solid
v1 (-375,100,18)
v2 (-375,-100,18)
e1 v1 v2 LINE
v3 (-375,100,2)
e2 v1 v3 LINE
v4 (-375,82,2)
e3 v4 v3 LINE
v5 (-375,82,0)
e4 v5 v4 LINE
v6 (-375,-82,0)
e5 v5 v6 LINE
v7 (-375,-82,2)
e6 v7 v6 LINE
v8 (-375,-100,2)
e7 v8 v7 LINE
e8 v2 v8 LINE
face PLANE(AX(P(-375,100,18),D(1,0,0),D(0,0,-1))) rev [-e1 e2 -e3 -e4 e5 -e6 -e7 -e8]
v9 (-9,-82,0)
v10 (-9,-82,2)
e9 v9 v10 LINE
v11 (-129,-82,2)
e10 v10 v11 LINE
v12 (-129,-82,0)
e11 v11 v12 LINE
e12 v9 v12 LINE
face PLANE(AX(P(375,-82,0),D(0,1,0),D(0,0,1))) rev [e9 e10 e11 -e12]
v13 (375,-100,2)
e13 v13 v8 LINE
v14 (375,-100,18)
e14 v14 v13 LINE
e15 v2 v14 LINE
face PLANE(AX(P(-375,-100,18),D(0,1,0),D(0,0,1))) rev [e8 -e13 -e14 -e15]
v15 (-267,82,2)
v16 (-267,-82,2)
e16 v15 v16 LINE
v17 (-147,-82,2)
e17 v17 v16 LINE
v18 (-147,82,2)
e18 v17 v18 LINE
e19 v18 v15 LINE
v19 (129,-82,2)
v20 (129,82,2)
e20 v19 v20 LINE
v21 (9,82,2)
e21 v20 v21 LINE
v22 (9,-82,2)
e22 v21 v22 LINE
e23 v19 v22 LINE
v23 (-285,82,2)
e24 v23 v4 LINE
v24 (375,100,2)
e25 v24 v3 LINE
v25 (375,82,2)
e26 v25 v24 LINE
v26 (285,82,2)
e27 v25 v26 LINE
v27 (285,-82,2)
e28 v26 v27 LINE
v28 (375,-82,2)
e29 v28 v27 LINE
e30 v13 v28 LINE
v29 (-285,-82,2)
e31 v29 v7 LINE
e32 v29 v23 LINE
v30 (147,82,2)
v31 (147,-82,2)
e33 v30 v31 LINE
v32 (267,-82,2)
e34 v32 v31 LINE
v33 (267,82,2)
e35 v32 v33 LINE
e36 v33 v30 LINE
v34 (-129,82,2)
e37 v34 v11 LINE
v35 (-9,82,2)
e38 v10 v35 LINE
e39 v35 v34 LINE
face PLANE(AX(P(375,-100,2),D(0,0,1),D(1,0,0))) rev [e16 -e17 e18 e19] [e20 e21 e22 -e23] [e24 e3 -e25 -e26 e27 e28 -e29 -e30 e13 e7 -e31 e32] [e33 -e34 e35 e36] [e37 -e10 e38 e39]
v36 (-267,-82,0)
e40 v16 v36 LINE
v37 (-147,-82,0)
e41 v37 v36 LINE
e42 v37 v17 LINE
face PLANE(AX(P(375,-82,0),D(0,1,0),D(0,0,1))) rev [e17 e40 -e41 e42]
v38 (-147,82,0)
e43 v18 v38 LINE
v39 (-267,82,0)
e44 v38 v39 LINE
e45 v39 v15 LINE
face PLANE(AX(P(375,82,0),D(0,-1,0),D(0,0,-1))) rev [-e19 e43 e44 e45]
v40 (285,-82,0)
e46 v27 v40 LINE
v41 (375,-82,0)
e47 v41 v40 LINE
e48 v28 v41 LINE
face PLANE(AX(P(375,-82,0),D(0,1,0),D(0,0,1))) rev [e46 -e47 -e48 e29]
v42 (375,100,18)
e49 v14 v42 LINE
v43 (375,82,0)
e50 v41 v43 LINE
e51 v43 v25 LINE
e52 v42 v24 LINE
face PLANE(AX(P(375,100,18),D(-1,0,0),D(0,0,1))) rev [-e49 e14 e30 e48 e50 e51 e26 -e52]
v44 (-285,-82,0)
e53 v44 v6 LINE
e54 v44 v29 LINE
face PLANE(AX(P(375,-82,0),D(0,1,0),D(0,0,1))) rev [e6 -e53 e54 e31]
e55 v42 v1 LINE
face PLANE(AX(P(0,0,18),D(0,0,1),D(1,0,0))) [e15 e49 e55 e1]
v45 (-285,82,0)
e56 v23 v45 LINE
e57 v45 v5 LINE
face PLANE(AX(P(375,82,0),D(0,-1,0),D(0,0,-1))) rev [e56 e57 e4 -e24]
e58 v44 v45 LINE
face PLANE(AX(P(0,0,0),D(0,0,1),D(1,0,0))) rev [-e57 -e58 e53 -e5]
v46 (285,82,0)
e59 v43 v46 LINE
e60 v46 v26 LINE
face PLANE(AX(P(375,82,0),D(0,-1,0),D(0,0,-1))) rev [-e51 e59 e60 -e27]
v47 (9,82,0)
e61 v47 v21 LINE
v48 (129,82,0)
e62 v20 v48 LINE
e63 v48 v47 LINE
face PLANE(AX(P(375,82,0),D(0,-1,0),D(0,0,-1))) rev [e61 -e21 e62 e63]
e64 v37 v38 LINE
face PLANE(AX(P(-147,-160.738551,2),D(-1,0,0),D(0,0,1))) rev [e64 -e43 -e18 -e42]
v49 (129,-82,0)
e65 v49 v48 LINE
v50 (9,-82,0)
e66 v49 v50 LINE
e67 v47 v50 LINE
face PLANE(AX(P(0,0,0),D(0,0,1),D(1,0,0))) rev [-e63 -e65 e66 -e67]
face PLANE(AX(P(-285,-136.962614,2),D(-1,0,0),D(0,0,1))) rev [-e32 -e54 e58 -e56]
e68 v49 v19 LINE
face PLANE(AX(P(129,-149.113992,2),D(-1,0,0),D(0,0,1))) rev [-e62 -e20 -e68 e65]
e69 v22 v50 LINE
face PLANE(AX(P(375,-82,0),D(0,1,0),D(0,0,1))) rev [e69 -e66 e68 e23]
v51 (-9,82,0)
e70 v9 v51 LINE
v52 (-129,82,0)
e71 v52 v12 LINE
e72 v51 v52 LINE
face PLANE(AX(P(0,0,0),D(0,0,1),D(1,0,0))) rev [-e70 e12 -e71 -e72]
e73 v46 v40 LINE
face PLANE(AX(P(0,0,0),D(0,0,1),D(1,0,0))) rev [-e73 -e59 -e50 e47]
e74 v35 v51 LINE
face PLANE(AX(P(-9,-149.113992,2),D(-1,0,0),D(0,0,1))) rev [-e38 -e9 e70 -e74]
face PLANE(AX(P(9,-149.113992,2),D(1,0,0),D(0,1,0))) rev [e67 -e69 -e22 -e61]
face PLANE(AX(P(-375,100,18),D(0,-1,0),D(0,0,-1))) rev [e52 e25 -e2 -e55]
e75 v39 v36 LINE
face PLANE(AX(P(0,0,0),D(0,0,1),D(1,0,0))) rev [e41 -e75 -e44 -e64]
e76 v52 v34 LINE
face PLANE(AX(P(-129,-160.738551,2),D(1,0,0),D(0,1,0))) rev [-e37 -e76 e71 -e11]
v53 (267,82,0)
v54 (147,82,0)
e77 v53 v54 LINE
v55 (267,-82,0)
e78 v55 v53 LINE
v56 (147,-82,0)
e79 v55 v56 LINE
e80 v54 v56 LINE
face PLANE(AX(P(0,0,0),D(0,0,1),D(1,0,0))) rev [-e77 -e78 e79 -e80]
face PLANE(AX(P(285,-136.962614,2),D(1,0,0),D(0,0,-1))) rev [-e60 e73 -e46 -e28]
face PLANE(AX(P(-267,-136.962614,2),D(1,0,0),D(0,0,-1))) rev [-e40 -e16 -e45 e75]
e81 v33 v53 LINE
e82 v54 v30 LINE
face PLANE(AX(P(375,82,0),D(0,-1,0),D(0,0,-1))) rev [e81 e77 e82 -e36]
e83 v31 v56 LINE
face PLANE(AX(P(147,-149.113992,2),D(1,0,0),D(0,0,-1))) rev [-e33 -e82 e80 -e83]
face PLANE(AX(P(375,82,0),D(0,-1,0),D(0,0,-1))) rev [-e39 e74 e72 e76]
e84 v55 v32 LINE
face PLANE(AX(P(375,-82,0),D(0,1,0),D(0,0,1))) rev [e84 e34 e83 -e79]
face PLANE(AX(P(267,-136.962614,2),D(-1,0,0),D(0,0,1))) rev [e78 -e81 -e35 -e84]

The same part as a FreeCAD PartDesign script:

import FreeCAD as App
import Part
import Sketcher

doc = App.newDocument("Part")
body = doc.addObject("PartDesign::Body", "Body")

# Sketch on XY plane
sketch1 = doc.addObject("Sketcher::SketchObject", "Sketch")
body.addObject(sketch1)
sketch1.AttachmentSupport = (doc.XY_Plane, [""])
sketch1.MapMode = "FlatFace"
sketch1.addGeometry(Part.LineSegment(App.Vector(-375, 100, 0), App.Vector(-375, -100, 0)), False)
sketch1.addGeometry(Part.LineSegment(App.Vector(-375, -100, 0), App.Vector(375, -100, 0)), False)
sketch1.addGeometry(Part.LineSegment(App.Vector(375, -100, 0), App.Vector(375, 100, 0)), False)
sketch1.addGeometry(Part.LineSegment(App.Vector(375, 100, 0), App.Vector(-375, 100, 0)), False)
sketch1.addConstraint(Sketcher.Constraint("Coincident", 0, 2, 1, 1))
sketch1.addConstraint(Sketcher.Constraint("Coincident", 1, 2, 2, 1))
sketch1.addConstraint(Sketcher.Constraint("Coincident", 2, 2, 3, 1))
sketch1.addConstraint(Sketcher.Constraint("Coincident", 3, 2, 0, 1))
sketch1.addConstraint(Sketcher.Constraint("Vertical", 0))
sketch1.addConstraint(Sketcher.Constraint("Horizontal", 1))
sketch1.addConstraint(Sketcher.Constraint("Vertical", 2))
sketch1.addConstraint(Sketcher.Constraint("Horizontal", 3))
sketch1.addConstraint(Sketcher.Constraint("Symmetric", 0, 2, 2, 2, -1, 1))
sketch1.addConstraint(Sketcher.Constraint("DistanceX", 1, 1, 1, 2, 750.0))
sketch1.addConstraint(Sketcher.Constraint("DistanceY", 0, 2, 0, 1, 200.0))
pad1 = doc.addObject("PartDesign::Pad", "Pad")
body.addObject(pad1)
pad1.Profile = sketch1
pad1.Length = 18

# Sketch on YZ plane
sketch2 = doc.addObject("Sketcher::SketchObject", "Sketch001")
body.addObject(sketch2)
sketch2.AttachmentSupport = (doc.YZ_Plane, [""])
sketch2.MapMode = "FlatFace"
sketch2.AttachmentOffset = App.Placement(App.Vector(0, 0, -375), App.Rotation())
sketch2.addGeometry(Part.LineSegment(App.Vector(-82, 0, 0), App.Vector(-100, 0, 0)), False)
sketch2.addGeometry(Part.LineSegment(App.Vector(-100, 0, 0), App.Vector(-100, 2, 0)), False)
sketch2.addGeometry(Part.LineSegment(App.Vector(-100, 2, 0), App.Vector(-82, 2, 0)), False)
sketch2.addGeometry(Part.LineSegment(App.Vector(-82, 2, 0), App.Vector(-82, 0, 0)), False)
sketch2.addGeometry(Part.LineSegment(App.Vector(100, 0, 0), App.Vector(82, 0, 0)), False)
sketch2.addGeometry(Part.LineSegment(App.Vector(82, 0, 0), App.Vector(82, 2, 0)), False)
sketch2.addGeometry(Part.LineSegment(App.Vector(82, 2, 0), App.Vector(100, 2, 0)), False)
sketch2.addGeometry(Part.LineSegment(App.Vector(100, 2, 0), App.Vector(100, 0, 0)), False)
sketch2.addConstraint(Sketcher.Constraint("Coincident", 0, 2, 1, 1))
sketch2.addConstraint(Sketcher.Constraint("Coincident", 1, 2, 2, 1))
sketch2.addConstraint(Sketcher.Constraint("Coincident", 2, 2, 3, 1))
sketch2.addConstraint(Sketcher.Constraint("Coincident", 3, 2, 0, 1))
sketch2.addConstraint(Sketcher.Constraint("Coincident", 4, 2, 5, 1))
sketch2.addConstraint(Sketcher.Constraint("Coincident", 5, 2, 6, 1))
sketch2.addConstraint(Sketcher.Constraint("Coincident", 6, 2, 7, 1))
sketch2.addConstraint(Sketcher.Constraint("Coincident", 7, 2, 4, 1))
sketch2.addConstraint(Sketcher.Constraint("Horizontal", 0))
sketch2.addConstraint(Sketcher.Constraint("Vertical", 1))
sketch2.addConstraint(Sketcher.Constraint("Horizontal", 2))
sketch2.addConstraint(Sketcher.Constraint("Vertical", 3))
sketch2.addConstraint(Sketcher.Constraint("Horizontal", 4))
sketch2.addConstraint(Sketcher.Constraint("Vertical", 5))
sketch2.addConstraint(Sketcher.Constraint("Horizontal", 6))
sketch2.addConstraint(Sketcher.Constraint("Vertical", 7))
sketch2.addConstraint(Sketcher.Constraint("Symmetric", 3, 2, 4, 2, -1, 1))
sketch2.addConstraint(Sketcher.Constraint("Symmetric", 1, 2, 6, 2, -2))
sketch2.addConstraint(Sketcher.Constraint("PointOnObject", 0, 2, -1))
sketch2.addConstraint(Sketcher.Constraint("DistanceX", 0, 2, 0, 1, 18.0))
sketch2.addConstraint(Sketcher.Constraint("DistanceY", 1, 1, 1, 2, 2.0))
sketch2.addConstraint(Sketcher.Constraint("DistanceX", 0, 2, -1, 1, 100.0))
pocket1 = doc.addObject("PartDesign::Pocket", "Pocket")
body.addObject(pocket1)
pocket1.Profile = sketch2
pocket1.Type = "ThroughAll"
pocket1.Reversed = True

# Sketch on XY plane
sketch3 = doc.addObject("Sketcher::SketchObject", "Sketch002")
body.addObject(sketch3)
sketch3.AttachmentSupport = (doc.XY_Plane, [""])
sketch3.MapMode = "FlatFace"
sketch3.addGeometry(Part.LineSegment(App.Vector(-267, 192, 0), App.Vector(-267, -137, 0)), False)
sketch3.addGeometry(Part.LineSegment(App.Vector(-267, -137, 0), App.Vector(-285, -137, 0)), False)
sketch3.addGeometry(Part.LineSegment(App.Vector(-285, -137, 0), App.Vector(-285, 192, 0)), False)
sketch3.addGeometry(Part.LineSegment(App.Vector(-285, 192, 0), App.Vector(-267, 192, 0)), False)
sketch3.addGeometry(Part.LineSegment(App.Vector(-129, 212, 0), App.Vector(-129, -161, 0)), False)
sketch3.addGeometry(Part.LineSegment(App.Vector(-129, -161, 0), App.Vector(-147, -161, 0)), False)
sketch3.addGeometry(Part.LineSegment(App.Vector(-147, -161, 0), App.Vector(-147, 212, 0)), False)
sketch3.addGeometry(Part.LineSegment(App.Vector(-147, 212, 0), App.Vector(-129, 212, 0)), False)
sketch3.addGeometry(Part.LineSegment(App.Vector(9, 220, 0), App.Vector(9, -149, 0)), False)
sketch3.addGeometry(Part.LineSegment(App.Vector(9, -149, 0), App.Vector(-9, -149, 0)), False)
sketch3.addGeometry(Part.LineSegment(App.Vector(-9, -149, 0), App.Vector(-9, 220, 0)), False)
sketch3.addGeometry(Part.LineSegment(App.Vector(-9, 220, 0), App.Vector(9, 220, 0)), False)
sketch3.addGeometry(Part.LineSegment(App.Vector(147, 235, 0), App.Vector(147, -149, 0)), False)
sketch3.addGeometry(Part.LineSegment(App.Vector(147, -149, 0), App.Vector(129, -149, 0)), False)
sketch3.addGeometry(Part.LineSegment(App.Vector(129, -149, 0), App.Vector(129, 235, 0)), False)
sketch3.addGeometry(Part.LineSegment(App.Vector(129, 235, 0), App.Vector(147, 235, 0)), False)
sketch3.addGeometry(Part.LineSegment(App.Vector(285, 253, 0), App.Vector(285, -137, 0)), False)
sketch3.addGeometry(Part.LineSegment(App.Vector(285, -137, 0), App.Vector(267, -137, 0)), False)
sketch3.addGeometry(Part.LineSegment(App.Vector(267, -137, 0), App.Vector(267, 253, 0)), False)
sketch3.addGeometry(Part.LineSegment(App.Vector(267, 253, 0), App.Vector(285, 253, 0)), False)
sketch3.addConstraint(Sketcher.Constraint("Coincident", 0, 2, 1, 1))
sketch3.addConstraint(Sketcher.Constraint("Coincident", 1, 2, 2, 1))
sketch3.addConstraint(Sketcher.Constraint("Coincident", 2, 2, 3, 1))
sketch3.addConstraint(Sketcher.Constraint("Coincident", 3, 2, 0, 1))
sketch3.addConstraint(Sketcher.Constraint("Coincident", 4, 2, 5, 1))
sketch3.addConstraint(Sketcher.Constraint("Coincident", 5, 2, 6, 1))
sketch3.addConstraint(Sketcher.Constraint("Coincident", 6, 2, 7, 1))
sketch3.addConstraint(Sketcher.Constraint("Coincident", 7, 2, 4, 1))
sketch3.addConstraint(Sketcher.Constraint("Coincident", 8, 2, 9, 1))
sketch3.addConstraint(Sketcher.Constraint("Coincident", 9, 2, 10, 1))
sketch3.addConstraint(Sketcher.Constraint("Coincident", 10, 2, 11, 1))
sketch3.addConstraint(Sketcher.Constraint("Coincident", 11, 2, 8, 1))
sketch3.addConstraint(Sketcher.Constraint("Coincident", 12, 2, 13, 1))
sketch3.addConstraint(Sketcher.Constraint("Coincident", 13, 2, 14, 1))
sketch3.addConstraint(Sketcher.Constraint("Coincident", 14, 2, 15, 1))
sketch3.addConstraint(Sketcher.Constraint("Coincident", 15, 2, 12, 1))
sketch3.addConstraint(Sketcher.Constraint("Coincident", 16, 2, 17, 1))
sketch3.addConstraint(Sketcher.Constraint("Coincident", 17, 2, 18, 1))
sketch3.addConstraint(Sketcher.Constraint("Coincident", 18, 2, 19, 1))
sketch3.addConstraint(Sketcher.Constraint("Coincident", 19, 2, 16, 1))
sketch3.addConstraint(Sketcher.Constraint("Vertical", 0))
sketch3.addConstraint(Sketcher.Constraint("Horizontal", 1))
sketch3.addConstraint(Sketcher.Constraint("Vertical", 2))
sketch3.addConstraint(Sketcher.Constraint("Horizontal", 3))
sketch3.addConstraint(Sketcher.Constraint("Vertical", 4))
sketch3.addConstraint(Sketcher.Constraint("Horizontal", 5))
sketch3.addConstraint(Sketcher.Constraint("Vertical", 6))
sketch3.addConstraint(Sketcher.Constraint("Horizontal", 7))
sketch3.addConstraint(Sketcher.Constraint("Vertical", 8))
sketch3.addConstraint(Sketcher.Constraint("Horizontal", 9))
sketch3.addConstraint(Sketcher.Constraint("Vertical", 10))
sketch3.addConstraint(Sketcher.Constraint("Horizontal", 11))
sketch3.addConstraint(Sketcher.Constraint("Vertical", 12))
sketch3.addConstraint(Sketcher.Constraint("Horizontal", 13))
sketch3.addConstraint(Sketcher.Constraint("Vertical", 14))
sketch3.addConstraint(Sketcher.Constraint("Horizontal", 15))
sketch3.addConstraint(Sketcher.Constraint("Vertical", 16))
sketch3.addConstraint(Sketcher.Constraint("Horizontal", 17))
sketch3.addConstraint(Sketcher.Constraint("Vertical", 18))
sketch3.addConstraint(Sketcher.Constraint("Horizontal", 19))
sketch3.addConstraint(Sketcher.Constraint("Symmetric", 1, 2, 16, 2, -2))
sketch3.addConstraint(Sketcher.Constraint("Horizontal", 9, 2, 12, 2))
sketch3.addConstraint(Sketcher.Constraint("Equal", 3, 5))
sketch3.addConstraint(Sketcher.Constraint("Equal", 7, 9))
sketch3.addConstraint(Sketcher.Constraint("Equal", 11, 13))
sketch3.addConstraint(Sketcher.Constraint("Equal", 15, 17))
sketch3.addConstraint(Sketcher.Constraint("DistanceX", 1, 2, 1, 1, 18.0))
sketch3.addConstraint(Sketcher.Constraint("DistanceX", 0, 2, -1, 1, 267.0))
sketch3.addConstraint(Sketcher.Constraint("DistanceX", 4, 2, -1, 1, 129.0))
sketch3.addConstraint(Sketcher.Constraint("DistanceX", -1, 1, 8, 2, 9.0))
sketch3.addConstraint(Sketcher.Constraint("DistanceX", -1, 1, 12, 2, 147.0))
sketch3.addConstraint(Sketcher.Constraint("DistanceY", 0, 2, 0, 1, 328.758101))
sketch3.addConstraint(Sketcher.Constraint("DistanceY", 4, 2, 4, 1, 372.82902))
sketch3.addConstraint(Sketcher.Constraint("DistanceY", 8, 2, 8, 1, 369.502918))
sketch3.addConstraint(Sketcher.Constraint("DistanceY", 16, 2, 16, 1, 390.144461))
sketch3.addConstraint(Sketcher.Constraint("DistanceY", 12, 2, 12, 1, 384.006513))
sketch3.addConstraint(Sketcher.Constraint("DistanceY", 4, 2, -1, 1, 160.738551))
sketch3.addConstraint(Sketcher.Constraint("DistanceY", 8, 2, -1, 1, 149.113992))
sketch3.addConstraint(Sketcher.Constraint("DistanceY", 4, 2, 3, 2, 352.534038))
pocket2 = doc.addObject("PartDesign::Pocket", "Pocket001")
body.addObject(pocket2)
pocket2.Profile = sketch3
pocket2.Length = 2
pocket2.Reversed = True

doc.recompute()
